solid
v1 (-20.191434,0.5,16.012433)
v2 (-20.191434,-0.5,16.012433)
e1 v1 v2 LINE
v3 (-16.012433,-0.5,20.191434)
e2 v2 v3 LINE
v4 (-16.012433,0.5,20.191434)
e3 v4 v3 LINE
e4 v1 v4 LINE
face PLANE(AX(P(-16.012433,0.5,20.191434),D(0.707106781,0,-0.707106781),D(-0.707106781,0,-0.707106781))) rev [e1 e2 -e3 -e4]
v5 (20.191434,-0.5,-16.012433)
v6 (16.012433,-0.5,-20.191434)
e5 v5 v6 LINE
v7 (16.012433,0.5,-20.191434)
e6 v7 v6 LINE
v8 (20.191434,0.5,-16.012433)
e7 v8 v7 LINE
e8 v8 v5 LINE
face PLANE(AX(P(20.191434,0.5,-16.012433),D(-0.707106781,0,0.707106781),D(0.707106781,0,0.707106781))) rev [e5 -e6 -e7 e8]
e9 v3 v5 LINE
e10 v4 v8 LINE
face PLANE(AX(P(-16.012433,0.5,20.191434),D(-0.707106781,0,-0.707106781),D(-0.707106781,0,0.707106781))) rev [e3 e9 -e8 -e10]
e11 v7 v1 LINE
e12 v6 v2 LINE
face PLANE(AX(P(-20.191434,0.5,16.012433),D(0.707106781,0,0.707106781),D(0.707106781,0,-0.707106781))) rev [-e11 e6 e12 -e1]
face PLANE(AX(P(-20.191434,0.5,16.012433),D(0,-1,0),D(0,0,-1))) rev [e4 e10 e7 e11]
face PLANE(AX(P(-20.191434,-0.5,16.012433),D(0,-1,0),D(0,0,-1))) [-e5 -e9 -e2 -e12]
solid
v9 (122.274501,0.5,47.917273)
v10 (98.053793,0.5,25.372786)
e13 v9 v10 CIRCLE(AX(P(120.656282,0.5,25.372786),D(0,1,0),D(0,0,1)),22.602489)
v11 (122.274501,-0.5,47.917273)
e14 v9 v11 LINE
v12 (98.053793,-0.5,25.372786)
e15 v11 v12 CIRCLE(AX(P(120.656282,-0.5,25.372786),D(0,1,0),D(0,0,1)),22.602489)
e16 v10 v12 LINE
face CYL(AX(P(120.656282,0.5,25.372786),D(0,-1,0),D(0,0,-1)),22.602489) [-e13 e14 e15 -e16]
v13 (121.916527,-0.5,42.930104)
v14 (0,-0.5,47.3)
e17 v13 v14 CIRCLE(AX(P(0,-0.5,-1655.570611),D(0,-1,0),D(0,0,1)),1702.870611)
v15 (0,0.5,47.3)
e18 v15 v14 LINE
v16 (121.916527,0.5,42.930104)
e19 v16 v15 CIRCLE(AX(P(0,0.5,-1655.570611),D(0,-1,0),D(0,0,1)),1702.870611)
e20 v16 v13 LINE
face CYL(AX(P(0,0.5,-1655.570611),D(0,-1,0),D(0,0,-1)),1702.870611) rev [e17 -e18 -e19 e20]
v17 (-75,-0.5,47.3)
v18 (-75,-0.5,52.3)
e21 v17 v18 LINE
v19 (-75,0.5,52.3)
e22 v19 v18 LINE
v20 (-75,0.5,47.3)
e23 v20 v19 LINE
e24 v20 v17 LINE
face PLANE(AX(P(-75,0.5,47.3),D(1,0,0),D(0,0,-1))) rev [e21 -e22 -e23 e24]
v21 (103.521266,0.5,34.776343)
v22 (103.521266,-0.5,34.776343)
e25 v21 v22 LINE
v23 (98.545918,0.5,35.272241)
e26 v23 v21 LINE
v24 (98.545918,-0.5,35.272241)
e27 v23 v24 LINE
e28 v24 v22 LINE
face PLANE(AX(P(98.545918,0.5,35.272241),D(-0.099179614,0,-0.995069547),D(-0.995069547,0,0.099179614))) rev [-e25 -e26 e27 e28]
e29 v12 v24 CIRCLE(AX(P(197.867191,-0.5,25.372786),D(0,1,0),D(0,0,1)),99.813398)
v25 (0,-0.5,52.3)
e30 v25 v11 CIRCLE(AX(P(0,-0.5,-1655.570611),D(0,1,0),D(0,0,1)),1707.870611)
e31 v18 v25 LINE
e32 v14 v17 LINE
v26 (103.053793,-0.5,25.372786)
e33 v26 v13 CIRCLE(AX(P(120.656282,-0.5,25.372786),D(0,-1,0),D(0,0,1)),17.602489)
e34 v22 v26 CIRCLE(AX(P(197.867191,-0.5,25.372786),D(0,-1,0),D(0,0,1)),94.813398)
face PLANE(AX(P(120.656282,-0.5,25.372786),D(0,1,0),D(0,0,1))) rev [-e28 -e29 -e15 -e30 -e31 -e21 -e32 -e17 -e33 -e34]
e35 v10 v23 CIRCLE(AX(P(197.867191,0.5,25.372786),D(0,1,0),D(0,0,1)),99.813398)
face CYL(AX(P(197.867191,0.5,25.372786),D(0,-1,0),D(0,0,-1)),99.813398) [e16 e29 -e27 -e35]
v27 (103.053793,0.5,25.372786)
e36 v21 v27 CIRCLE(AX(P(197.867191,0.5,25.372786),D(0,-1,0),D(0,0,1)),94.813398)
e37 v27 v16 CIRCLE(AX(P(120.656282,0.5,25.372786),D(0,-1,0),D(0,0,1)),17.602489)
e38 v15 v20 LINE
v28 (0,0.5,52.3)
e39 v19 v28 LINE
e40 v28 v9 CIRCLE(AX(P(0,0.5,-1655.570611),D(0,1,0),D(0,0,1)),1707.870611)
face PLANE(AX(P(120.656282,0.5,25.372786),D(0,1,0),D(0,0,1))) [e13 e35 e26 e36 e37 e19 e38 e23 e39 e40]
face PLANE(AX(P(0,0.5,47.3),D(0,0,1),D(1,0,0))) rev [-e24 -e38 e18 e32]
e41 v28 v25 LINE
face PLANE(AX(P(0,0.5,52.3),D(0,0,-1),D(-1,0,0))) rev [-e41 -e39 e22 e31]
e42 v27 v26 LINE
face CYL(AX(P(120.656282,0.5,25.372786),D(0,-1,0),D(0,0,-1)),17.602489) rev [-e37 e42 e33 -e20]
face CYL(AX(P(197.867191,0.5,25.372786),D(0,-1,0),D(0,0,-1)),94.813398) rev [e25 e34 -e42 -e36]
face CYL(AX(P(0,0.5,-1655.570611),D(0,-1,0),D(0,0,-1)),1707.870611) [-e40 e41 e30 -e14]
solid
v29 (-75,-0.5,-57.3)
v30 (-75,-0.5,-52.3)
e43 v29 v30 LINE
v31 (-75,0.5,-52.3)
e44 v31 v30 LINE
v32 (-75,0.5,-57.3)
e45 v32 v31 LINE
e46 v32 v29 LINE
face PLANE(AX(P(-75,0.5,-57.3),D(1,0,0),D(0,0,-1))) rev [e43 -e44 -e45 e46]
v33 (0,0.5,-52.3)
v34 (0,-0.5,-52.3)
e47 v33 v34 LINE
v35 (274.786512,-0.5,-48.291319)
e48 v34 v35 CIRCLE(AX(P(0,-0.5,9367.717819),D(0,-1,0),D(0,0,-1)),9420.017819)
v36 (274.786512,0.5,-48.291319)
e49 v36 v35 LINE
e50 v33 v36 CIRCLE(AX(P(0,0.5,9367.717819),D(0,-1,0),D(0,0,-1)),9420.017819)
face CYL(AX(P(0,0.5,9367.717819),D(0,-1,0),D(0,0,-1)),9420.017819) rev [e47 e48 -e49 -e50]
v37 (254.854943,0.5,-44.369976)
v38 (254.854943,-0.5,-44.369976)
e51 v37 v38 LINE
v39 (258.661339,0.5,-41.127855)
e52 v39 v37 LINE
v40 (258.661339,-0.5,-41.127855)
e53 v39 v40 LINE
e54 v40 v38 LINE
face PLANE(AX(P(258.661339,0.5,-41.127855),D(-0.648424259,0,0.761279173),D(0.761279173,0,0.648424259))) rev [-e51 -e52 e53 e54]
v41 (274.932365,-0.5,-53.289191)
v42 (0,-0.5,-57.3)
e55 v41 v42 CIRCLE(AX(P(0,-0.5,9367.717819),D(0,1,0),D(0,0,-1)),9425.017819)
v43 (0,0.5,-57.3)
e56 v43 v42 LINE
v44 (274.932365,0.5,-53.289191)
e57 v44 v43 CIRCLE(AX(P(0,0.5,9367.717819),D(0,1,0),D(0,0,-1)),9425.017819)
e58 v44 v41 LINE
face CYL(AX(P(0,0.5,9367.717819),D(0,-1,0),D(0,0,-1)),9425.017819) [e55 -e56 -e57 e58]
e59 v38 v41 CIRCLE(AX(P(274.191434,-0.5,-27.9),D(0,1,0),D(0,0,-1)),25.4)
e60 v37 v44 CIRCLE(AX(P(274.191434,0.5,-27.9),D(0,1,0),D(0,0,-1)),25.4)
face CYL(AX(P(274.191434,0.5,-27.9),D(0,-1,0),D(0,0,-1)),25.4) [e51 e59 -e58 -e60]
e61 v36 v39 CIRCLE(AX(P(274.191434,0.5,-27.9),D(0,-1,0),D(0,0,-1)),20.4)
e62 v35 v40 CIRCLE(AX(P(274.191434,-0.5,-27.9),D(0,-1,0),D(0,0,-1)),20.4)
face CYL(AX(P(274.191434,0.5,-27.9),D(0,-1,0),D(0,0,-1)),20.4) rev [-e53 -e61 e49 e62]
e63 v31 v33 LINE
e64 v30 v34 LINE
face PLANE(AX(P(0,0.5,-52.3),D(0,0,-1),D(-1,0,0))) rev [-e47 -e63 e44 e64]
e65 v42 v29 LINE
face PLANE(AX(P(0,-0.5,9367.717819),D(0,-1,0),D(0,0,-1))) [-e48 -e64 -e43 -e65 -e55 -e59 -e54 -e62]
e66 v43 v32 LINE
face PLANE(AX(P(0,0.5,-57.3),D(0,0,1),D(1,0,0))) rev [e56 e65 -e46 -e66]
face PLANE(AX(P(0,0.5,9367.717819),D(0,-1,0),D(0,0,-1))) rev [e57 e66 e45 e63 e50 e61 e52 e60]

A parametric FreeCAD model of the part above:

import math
import FreeCAD as App
import Part
import Sketcher
from FreeCAD import Vector
Q = App.Units.Quantity

doc = App.newDocument("Part")
body = doc.addObject("PartDesign::Body", "Body")

sketch1 = doc.addObject("Sketcher::SketchObject", "Sketch")
body.addObject(sketch1)
sketch1.AttachmentSupport = (doc.XZ_Plane, [""])
sketch1.MapMode = "FlatFace"
sketch1.addGeometry([
    Part.LineSegment(Vector(0, -57.3, 0), Vector(-75, -57.3, 0)),
    Part.LineSegment(Vector(-75, -57.3, 0), Vector(-75, -52.3, 0)),
    Part.LineSegment(Vector(-75, -52.3, 0), Vector(0, -52.3, 0)),
    Part.ArcOfCircle(Part.Circle(Vector(0, 9367.717821, 0), Vector(0, 0, 1), 9420.017821), math.radians(-90), math.radians(-88.328417)),
    Part.ArcOfCircle(Part.Circle(Vector(274.191434, -27.9, 0), Vector(0, 0, 1), 20.4), math.radians(-88.328417), math.radians(220.422903)),
    Part.LineSegment(Vector(258.661339, -41.127855, 0), Vector(254.854943, -44.369976, 0)),
    Part.ArcOfCircle(Part.Circle(Vector(274.191434, -27.9, 0), Vector(0, 0, 1), 25.4), math.radians(0), math.radians(220.422903)),
    Part.ArcOfCircle(Part.Circle(Vector(274.191434, -27.9, 0), Vector(0, 0, 1), 25.4), math.radians(-88.328417), math.radians(0)),
    Part.ArcOfCircle(Part.Circle(Vector(0, 9367.717824, 0), Vector(0, 0, 1), 9425.017824), math.radians(-90), math.radians(-88.328417)),
], False)
sketch1.addConstraint([
    Sketcher.Constraint("Coincident", 0, 2, 1, 1),
    Sketcher.Constraint("Coincident", 1, 2, 2, 1),
    Sketcher.Constraint("Tangent", 2, 2, 3, 1),
    Sketcher.Constraint("Tangent", 3, 2, 4, 1),
    Sketcher.Constraint("Coincident", 4, 2, 5, 1),
    Sketcher.Constraint("Coincident", 5, 2, 6, 2),
    Sketcher.Constraint("Tangent", 6, 1, 7, 2),
    Sketcher.Constraint("Tangent", 7, 1, 8, 2),
    Sketcher.Constraint("Tangent", 8, 1, 0, 1),
    Sketcher.Constraint("Horizontal", 0),
    Sketcher.Constraint("Vertical", 1),
    Sketcher.Constraint("Horizontal", 2),
    Sketcher.Constraint("Coincident", 6, 3, 4, 3),
    Sketcher.Constraint("Coincident", 8, 3, 3, 3),
    Sketcher.Constraint("Equal", 6, 7),
    Sketcher.Constraint("PointOnObject", 3, 3, -2),
    Sketcher.Constraint("Horizontal", 7, 3, 6, 1),
    Sketcher.Constraint("Radius", 4, Q("20.4 mm")),
    Sketcher.Constraint("Radius", 6, Q("25.4 mm")),
    Sketcher.Constraint("DistanceX", 0, 2, 0, 1, Q("75 mm")),
    Sketcher.Constraint("DistanceY", 4, 3, -1, 1, Q("27.9 mm")),
    Sketcher.Constraint("DistanceY", 0, 2, -1, 1, Q("57.3 mm")),
    Sketcher.Constraint("Radius", 3, Q("9420.017821 mm")),
    Sketcher.Constraint("DistanceX", -1, 1, 4, 2, Q("258.661339 mm")),
    Sketcher.Constraint("DistanceY", 5, 2, 4, 2, Q("3.242121 mm")),
])
pad1 = doc.addObject("PartDesign::Pad", "Pad")
body.addObject(pad1)
pad1.Profile = sketch1
pad1.Length = 1
pad1.Midplane = True
body2 = doc.addObject("PartDesign::Body", "Body001")

sketch2 = doc.addObject("Sketcher::SketchObject", "Sketch001")
body2.addObject(sketch2)
sketch2.AttachmentSupport = (doc.getObject("XZ_Plane001"), [""])
sketch2.MapMode = "FlatFace"
sketch2.addGeometry([
    Part.LineSegment(Vector(0, 47.3, 0), Vector(-75, 47.3, 0)),
    Part.LineSegment(Vector(-75, 47.3, 0), Vector(-75, 52.3, 0)),
    Part.LineSegment(Vector(-75, 52.3, 0), Vector(0, 52.3, 0)),
    Part.ArcOfCircle(Part.Circle(Vector(0, -1655.570611, 0), Vector(0, 0, 1), 1707.870611), math.radians(85.894413), math.radians(90)),
    Part.ArcOfCircle(Part.Circle(Vector(120.656282, 25.372786, 0), Vector(0, 0, 1), 22.602489), math.radians(180), math.radians(445.894413)),
    Part.ArcOfCircle(Part.Circle(Vector(197.867191, 25.372786, 0), Vector(0, 0, 1), 99.813397), math.radians(174.308069), math.radians(180)),
    Part.LineSegment(Vector(98.545918, 35.272241, 0), Vector(103.521266, 34.776343, 0)),
    Part.ArcOfCircle(Part.Circle(Vector(197.867191, 25.372786, 0), Vector(0, 0, 1), 94.813398), math.radians(174.308069), math.radians(180)),
    Part.ArcOfCircle(Part.Circle(Vector(120.656282, 25.372786, 0), Vector(0, 0, 1), 17.602489), math.radians(180), math.radians(445.894413)),
    Part.ArcOfCircle(Part.Circle(Vector(0, -1655.570611, 0), Vector(0, 0, 1), 1702.870611), math.radians(85.894413), math.radians(90)),
], False)
sketch2.addConstraint([
    Sketcher.Constraint("Coincident", 0, 2, 1, 1),
    Sketcher.Constraint("Coincident", 1, 2, 2, 1),
    Sketcher.Constraint("Tangent", 2, 2, 3, 2),
    Sketcher.Constraint("Tangent", 3, 1, 4, 2),
    Sketcher.Constraint("Tangent", 4, 1, 5, 2),
    Sketcher.Constraint("Coincident", 5, 1, 6, 1),
    Sketcher.Constraint("Coincident", 6, 2, 7, 1),
    Sketcher.Constraint("Tangent", 7, 2, 8, 1),
    Sketcher.Constraint("Tangent", 8, 2, 9, 1),
    Sketcher.Constraint("Tangent", 9, 2, 0, 1),
    Sketcher.Constraint("Horizontal", 0),
    Sketcher.Constraint("Vertical", 1),
    Sketcher.Constraint("Horizontal", 2),
    Sketcher.Constraint("Coincident", 7, 3, 5, 3),
    Sketcher.Constraint("Coincident", 8, 3, 4, 3),
    Sketcher.Constraint("Coincident", 9, 3, 3, 3),
    Sketcher.Constraint("PointOnObject", 3, 3, -2),
    Sketcher.Constraint("Horizontal", 4, 3, 5, 3),
    Sketcher.Constraint("DistanceX", 0, 2, 0, 1, Q("75 mm")),
    Sketcher.Constraint("DistanceY", 1, 1, 1, 2, Q("5 mm")),
    Sketcher.Constraint("DistanceY", -1, 1, 0, 2, Q("47.3 mm")),
    Sketcher.Constraint("Radius", 3, Q("1707.870611 mm")),
    Sketcher.Constraint("Radius", 4, Q("22.602489 mm")),
    Sketcher.Constraint("Radius", 5, Q("99.813397 mm")),
    Sketcher.Constraint("DistanceY", 6, 2, 5, 1, Q("0.495898 mm")),
    Sketcher.Constraint("DistanceX", -1, 1, 5, 3, Q("197.867191 mm")),
    Sketcher.Constraint("DistanceX", -1, 1, 5, 1, Q("98.545918 mm")),
])
pad2 = doc.addObject("PartDesign::Pad", "Pad001")
body2.addObject(pad2)
pad2.Profile = sketch2
pad2.Length = 1
pad2.Midplane = True
body3 = doc.addObject("PartDesign::Body", "Body002")

sketch3 = doc.addObject("Sketcher::SketchObject", "Sketch002")
body3.addObject(sketch3)
sketch3.AttachmentSupport = (doc.getObject("XZ_Plane002"), [""])
sketch3.MapMode = "FlatFace"
sketch3.addGeometry([
    Part.LineSegment(Vector(-16.012433, 20.191434, 0), Vector(20.191434, -16.012433, 0)),
    Part.LineSegment(Vector(20.191434, -16.012433, 0), Vector(16.012433, -20.191434, 0)),
    Part.LineSegment(Vector(16.012433, -20.191434, 0), Vector(-20.191434, 16.012433, 0)),
    Part.LineSegment(Vector(-20.191434, 16.012433, 0), Vector(-16.012433, 20.191434, 0)),
], False)
sketch3.addConstraint([
    Sketcher.Constraint("Coincident", 0, 2, 1, 1),
    Sketcher.Constraint("Coincident", 1, 2, 2, 1),
    Sketcher.Constraint("Coincident", 2, 2, 3, 1),
    Sketcher.Constraint("Coincident", 3, 2, 0, 1),
    Sketcher.Constraint("Symmetric", 0, 2, 2, 2, -1, 1),
    Sketcher.Constraint("Symmetric", 1, 2, 3, 2, -1, 1),
    Sketcher.Constraint("Perpendicular", 0, 1),
    Sketcher.Constraint("Angle", 0, Q("-45 deg")),
    Sketcher.Constraint("Distance", 0, Q("51.2 mm")),
    Sketcher.Constraint("Distance", 1, Q("5.91 mm")),
])
pad3 = doc.addObject("PartDesign::Pad", "Pad002")
body3.addObject(pad3)
pad3.Profile = sketch3
pad3.Length = 1
pad3.Midplane = True

doc.recompute()
